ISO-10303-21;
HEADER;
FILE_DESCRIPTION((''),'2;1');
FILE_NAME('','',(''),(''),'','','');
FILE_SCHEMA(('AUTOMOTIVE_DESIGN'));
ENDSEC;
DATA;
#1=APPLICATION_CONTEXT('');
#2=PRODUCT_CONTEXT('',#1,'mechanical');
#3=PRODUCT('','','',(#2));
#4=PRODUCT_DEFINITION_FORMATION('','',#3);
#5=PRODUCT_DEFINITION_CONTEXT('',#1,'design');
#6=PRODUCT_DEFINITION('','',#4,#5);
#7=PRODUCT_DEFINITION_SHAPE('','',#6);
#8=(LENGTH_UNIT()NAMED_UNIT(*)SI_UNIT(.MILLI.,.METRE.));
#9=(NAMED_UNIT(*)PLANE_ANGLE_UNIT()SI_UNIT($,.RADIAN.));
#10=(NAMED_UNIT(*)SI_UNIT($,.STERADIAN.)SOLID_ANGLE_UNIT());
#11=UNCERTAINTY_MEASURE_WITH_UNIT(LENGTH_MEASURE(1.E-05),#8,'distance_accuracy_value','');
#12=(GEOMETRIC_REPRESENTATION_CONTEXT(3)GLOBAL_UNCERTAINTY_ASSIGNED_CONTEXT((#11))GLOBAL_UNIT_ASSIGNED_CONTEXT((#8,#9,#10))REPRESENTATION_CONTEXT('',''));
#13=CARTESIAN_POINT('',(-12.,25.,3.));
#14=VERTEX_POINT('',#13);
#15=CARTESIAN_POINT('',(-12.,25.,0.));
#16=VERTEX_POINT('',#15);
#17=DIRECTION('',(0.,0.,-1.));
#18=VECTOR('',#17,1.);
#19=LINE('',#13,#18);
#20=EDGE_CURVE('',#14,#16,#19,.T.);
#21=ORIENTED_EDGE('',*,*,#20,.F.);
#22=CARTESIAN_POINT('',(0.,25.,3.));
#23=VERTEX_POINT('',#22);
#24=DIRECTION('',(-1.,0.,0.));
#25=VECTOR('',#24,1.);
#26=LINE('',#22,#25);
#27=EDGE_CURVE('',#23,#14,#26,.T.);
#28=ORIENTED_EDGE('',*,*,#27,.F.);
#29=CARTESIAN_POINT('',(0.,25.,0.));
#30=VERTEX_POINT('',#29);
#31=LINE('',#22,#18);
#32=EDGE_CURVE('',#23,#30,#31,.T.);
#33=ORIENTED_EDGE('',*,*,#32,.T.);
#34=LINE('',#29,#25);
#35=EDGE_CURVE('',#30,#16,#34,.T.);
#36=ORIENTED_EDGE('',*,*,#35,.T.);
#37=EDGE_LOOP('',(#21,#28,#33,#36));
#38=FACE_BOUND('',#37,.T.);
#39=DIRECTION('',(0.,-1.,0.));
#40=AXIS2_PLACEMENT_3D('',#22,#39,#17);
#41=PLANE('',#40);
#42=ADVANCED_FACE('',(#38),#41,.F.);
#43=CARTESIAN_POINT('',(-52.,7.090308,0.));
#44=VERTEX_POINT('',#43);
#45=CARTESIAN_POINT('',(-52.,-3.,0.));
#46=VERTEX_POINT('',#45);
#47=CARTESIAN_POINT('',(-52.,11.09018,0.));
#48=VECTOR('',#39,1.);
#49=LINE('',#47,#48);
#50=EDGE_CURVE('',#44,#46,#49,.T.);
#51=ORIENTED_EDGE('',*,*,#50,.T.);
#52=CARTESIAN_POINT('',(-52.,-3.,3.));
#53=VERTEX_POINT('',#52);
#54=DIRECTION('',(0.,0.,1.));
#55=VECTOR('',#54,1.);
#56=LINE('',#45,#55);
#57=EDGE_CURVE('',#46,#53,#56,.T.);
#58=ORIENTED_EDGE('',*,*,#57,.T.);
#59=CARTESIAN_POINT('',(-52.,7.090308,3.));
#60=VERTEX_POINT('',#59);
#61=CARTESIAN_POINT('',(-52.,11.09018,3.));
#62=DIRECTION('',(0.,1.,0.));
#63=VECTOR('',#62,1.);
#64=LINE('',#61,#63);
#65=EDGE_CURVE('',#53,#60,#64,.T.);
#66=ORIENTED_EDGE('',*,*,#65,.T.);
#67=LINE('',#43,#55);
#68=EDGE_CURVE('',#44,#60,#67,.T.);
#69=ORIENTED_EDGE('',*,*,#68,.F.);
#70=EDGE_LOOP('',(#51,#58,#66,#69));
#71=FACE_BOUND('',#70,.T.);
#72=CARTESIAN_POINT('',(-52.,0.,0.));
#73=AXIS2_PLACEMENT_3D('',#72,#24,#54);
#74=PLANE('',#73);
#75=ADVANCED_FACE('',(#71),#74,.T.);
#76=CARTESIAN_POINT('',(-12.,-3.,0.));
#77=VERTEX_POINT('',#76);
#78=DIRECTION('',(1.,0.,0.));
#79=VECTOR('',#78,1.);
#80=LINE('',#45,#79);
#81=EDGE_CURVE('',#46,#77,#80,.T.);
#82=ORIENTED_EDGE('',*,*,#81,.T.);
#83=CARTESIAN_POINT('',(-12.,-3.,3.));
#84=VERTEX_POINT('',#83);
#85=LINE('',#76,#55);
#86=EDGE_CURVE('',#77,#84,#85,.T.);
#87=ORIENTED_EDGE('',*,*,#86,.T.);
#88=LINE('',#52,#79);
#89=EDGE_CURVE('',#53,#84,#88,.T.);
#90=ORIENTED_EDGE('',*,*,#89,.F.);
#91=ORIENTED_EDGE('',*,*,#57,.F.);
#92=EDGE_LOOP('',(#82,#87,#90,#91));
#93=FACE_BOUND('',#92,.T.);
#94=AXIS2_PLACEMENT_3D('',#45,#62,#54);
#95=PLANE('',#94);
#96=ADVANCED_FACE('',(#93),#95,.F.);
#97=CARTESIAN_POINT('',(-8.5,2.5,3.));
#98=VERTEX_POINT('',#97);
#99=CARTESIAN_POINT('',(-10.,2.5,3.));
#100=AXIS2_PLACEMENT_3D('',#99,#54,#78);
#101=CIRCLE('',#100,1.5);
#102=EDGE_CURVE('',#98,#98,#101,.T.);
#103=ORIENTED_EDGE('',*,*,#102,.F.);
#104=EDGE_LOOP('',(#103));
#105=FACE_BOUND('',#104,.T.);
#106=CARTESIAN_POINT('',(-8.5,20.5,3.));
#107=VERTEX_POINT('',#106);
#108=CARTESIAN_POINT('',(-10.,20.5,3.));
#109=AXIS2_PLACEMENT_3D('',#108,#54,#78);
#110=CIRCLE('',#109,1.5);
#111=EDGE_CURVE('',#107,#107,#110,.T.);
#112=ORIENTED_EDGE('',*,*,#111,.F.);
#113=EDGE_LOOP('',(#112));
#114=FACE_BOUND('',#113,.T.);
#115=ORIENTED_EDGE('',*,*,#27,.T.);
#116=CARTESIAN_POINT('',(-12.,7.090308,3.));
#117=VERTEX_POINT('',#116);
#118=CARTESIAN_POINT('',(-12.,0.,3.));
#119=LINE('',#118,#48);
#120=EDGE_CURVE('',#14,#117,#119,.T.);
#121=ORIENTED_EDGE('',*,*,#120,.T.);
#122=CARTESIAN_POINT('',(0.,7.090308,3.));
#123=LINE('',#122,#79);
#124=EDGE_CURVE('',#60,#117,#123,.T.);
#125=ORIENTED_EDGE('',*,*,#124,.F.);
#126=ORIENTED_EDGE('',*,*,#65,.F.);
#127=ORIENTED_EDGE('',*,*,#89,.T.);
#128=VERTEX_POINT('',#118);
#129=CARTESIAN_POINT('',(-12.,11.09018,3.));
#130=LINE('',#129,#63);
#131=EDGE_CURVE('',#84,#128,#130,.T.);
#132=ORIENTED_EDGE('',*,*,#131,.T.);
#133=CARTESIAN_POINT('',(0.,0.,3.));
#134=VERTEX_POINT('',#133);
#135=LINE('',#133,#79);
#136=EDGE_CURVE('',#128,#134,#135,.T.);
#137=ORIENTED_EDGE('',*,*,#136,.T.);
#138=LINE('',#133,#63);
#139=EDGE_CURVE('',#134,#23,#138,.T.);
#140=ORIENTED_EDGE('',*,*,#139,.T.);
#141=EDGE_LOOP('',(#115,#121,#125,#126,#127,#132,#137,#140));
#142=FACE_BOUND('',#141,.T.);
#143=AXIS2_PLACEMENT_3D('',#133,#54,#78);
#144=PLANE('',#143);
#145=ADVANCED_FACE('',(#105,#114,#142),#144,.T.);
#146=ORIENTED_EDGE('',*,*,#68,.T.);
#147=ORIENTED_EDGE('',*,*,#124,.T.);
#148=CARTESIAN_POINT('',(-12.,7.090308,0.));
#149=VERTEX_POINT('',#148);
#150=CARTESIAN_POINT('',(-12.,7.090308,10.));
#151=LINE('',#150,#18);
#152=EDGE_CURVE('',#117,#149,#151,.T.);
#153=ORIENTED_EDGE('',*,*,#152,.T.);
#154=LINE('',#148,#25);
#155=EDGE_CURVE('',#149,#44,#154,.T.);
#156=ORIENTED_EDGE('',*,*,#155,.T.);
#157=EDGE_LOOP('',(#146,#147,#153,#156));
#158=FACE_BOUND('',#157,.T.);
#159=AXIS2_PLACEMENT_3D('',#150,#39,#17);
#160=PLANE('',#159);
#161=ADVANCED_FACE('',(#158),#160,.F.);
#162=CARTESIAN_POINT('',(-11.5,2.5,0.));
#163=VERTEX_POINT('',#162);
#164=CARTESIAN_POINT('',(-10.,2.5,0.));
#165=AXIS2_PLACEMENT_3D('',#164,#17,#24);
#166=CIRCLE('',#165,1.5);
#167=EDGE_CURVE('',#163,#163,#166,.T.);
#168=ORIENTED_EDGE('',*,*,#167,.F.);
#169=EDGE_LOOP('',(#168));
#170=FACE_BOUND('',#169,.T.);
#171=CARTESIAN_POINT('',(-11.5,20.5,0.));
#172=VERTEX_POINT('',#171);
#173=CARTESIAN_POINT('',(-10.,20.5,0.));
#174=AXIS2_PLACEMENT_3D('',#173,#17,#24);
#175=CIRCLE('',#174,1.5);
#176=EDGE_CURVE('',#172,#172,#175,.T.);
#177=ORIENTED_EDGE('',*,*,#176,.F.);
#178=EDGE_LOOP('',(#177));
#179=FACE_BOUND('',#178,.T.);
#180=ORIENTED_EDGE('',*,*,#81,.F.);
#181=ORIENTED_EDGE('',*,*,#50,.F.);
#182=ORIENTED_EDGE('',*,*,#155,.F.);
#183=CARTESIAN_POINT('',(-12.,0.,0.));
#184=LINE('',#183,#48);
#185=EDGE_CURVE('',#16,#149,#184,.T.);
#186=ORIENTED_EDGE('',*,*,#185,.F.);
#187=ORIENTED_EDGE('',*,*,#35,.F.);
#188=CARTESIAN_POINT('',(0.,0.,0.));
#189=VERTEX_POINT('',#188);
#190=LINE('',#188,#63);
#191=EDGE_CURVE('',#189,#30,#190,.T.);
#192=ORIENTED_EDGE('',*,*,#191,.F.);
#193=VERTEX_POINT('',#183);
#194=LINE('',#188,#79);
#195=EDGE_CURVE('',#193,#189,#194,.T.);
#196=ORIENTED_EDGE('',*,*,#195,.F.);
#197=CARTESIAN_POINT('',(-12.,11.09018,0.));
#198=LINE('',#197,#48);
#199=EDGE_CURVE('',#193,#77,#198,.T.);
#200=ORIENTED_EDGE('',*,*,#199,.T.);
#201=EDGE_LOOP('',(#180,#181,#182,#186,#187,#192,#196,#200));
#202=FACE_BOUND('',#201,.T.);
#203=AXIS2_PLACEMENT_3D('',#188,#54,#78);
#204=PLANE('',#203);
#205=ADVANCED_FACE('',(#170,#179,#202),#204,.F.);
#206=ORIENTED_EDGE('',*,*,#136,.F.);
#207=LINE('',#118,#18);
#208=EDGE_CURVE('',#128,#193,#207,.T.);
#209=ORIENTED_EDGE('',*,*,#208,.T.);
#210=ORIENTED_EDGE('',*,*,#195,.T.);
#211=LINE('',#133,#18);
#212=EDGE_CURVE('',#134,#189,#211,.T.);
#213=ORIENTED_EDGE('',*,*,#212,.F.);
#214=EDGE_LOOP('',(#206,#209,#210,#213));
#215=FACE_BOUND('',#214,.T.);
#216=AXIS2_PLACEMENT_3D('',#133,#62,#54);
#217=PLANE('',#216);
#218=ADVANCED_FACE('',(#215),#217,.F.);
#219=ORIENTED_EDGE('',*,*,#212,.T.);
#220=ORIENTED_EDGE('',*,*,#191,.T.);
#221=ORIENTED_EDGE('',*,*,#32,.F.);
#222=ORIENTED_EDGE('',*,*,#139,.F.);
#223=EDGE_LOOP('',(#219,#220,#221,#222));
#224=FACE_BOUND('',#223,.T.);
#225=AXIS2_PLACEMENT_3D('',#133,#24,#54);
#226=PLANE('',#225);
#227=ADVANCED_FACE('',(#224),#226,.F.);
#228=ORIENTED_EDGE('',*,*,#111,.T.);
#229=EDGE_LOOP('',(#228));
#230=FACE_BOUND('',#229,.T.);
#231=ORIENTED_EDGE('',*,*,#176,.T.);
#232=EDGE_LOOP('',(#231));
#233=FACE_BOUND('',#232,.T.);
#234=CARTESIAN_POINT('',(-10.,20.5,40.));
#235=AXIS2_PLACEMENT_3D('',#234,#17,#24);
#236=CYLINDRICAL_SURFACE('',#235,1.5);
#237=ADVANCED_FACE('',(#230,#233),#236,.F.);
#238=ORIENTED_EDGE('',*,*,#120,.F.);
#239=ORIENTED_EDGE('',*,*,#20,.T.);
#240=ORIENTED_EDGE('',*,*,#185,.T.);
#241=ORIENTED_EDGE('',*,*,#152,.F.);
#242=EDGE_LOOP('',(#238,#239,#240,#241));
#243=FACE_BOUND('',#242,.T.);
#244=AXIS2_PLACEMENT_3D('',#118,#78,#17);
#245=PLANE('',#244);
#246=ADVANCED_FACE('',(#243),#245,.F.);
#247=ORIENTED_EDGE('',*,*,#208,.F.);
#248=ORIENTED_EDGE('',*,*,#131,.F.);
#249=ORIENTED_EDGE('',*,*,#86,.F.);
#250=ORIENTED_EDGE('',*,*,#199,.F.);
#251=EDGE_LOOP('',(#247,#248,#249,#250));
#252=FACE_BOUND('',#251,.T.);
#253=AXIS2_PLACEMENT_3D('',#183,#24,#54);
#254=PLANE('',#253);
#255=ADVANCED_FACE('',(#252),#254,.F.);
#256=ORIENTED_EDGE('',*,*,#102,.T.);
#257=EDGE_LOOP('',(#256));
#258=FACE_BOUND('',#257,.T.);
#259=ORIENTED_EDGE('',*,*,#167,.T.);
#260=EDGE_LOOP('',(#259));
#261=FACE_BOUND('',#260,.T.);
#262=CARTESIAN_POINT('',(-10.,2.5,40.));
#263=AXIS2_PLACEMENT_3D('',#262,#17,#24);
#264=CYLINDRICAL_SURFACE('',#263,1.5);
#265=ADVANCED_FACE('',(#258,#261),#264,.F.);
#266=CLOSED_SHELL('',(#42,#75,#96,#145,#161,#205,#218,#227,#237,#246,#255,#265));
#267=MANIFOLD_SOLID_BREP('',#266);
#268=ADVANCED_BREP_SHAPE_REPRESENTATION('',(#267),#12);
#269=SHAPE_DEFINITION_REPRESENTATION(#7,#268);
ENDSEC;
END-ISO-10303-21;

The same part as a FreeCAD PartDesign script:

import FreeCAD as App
import Part
import Sketcher


def add_polygon(sketch, points):
    """Adds a closed chain of lines whose ends are joined by coincident constraints."""
    first, n = sketch.GeometryCount, len(points)
    for a, b in zip(points, points[1:] + points[:1]):
        sketch.addGeometry(Part.LineSegment(App.Vector(*a, 0), App.Vector(*b, 0)), False)
    for i in range(n):
        sketch.addConstraint(Sketcher.Constraint("Coincident", first + i, 2, first + (i + 1) % n, 1))

doc = App.newDocument("Part")
body = doc.addObject("PartDesign::Body", "Body")

sketch1 = body.newObject("Sketcher::SketchObject", "Sketch")
sketch1.AttachmentSupport = (doc.getObject("XY_Plane"), [""])
sketch1.MapMode = "FlatFace"
add_polygon(sketch1, [(-12, 25), (-12, 0), (0, 0), (0, 25)])
sketch1.addConstraint([
    Sketcher.Constraint("Vertical", 0),
    Sketcher.Constraint("Horizontal", 1),
    Sketcher.Constraint("Vertical", 2),
    Sketcher.Constraint("Horizontal", 3),
    Sketcher.Constraint("Coincident", 1, 2, -1, 1),
    Sketcher.Constraint("DistanceX", 1, 1, 1, 2, 12.0),
    Sketcher.Constraint("DistanceY", 0, 2, 0, 1, 25.0),
])
pad1 = body.newObject("PartDesign::Pad", "Pad")
pad1.Profile = sketch1
pad1.Length = 3

sketch2 = body.newObject("Sketcher::SketchObject", "Sketch001")
sketch2.AttachmentSupport = (doc.getObject("XY_Plane"), [""])
sketch2.MapMode = "FlatFace"
sketch2.addGeometry([
    Part.Circle(App.Vector(-10, 2.5, 0), App.Vector(0, 0, 1), 1.5),
    Part.Circle(App.Vector(-10, 20.5, 0), App.Vector(0, 0, 1), 1.5),
], False)
sketch2.addConstraint([
    Sketcher.Constraint("Equal", 0, 1),
    Sketcher.Constraint("Vertical", 0, 3, 1, 3),
    Sketcher.Constraint("Diameter", 0, 3.0),
    Sketcher.Constraint("DistanceX", 0, 3, -1, 1, 10.0),
    Sketcher.Constraint("DistanceY", 0, 3, 1, 3, 18.0),
    Sketcher.Constraint("DistanceY", -1, 1, 0, 3, 2.5),
])
pocket1 = body.newObject("PartDesign::Pocket", "Pocket")
pocket1.Profile = sketch2
pocket1.Length = 40
pocket1.Reversed = True

sketch3 = body.newObject("Sketcher::SketchObject", "Sketch002")
sketch3.AttachmentSupport = (doc.getObject("YZ_Plane"), [""])
sketch3.MapMode = "FlatFace"
sketch3.AttachmentOffset = App.Placement(App.Vector(0, 0, -12), App.Rotation())
add_polygon(sketch3, [(11.1, 0), (-3, 0), (-3, 3), (11.1, 3)])
sketch3.addConstraint([
    Sketcher.Constraint("Horizontal", 0),
    Sketcher.Constraint("Vertical", 1),
    Sketcher.Constraint("Horizontal", 2),
    Sketcher.Constraint("Vertical", 3),
    Sketcher.Constraint("PointOnObject", 0, 2, -1),
    Sketcher.Constraint("DistanceY", 1, 1, 1, 2, 3.0),
    Sketcher.Constraint("DistanceX", 0, 2, -1, 1, 3.0),
    Sketcher.Constraint("DistanceX", 0, 2, 0, 1, 14.09018),
])
pad2 = body.newObject("PartDesign::Pad", "Pad001")
pad2.Profile = sketch3
pad2.Length = 40
pad2.Reversed = True

sketch4 = body.newObject("Sketcher::SketchObject", "Sketch003")
sketch4.AttachmentSupport = (doc.getObject("XY_Plane"), [""])
sketch4.MapMode = "FlatFace"
add_polygon(sketch4, [(-12, 11.1), (-12, 7.1), (-52, 7.1), (-52, 11.1)])
sketch4.addConstraint([
    Sketcher.Constraint("Vertical", 0),
    Sketcher.Constraint("Horizontal", 1),
    Sketcher.Constraint("Vertical", 2),
    Sketcher.Constraint("Horizontal", 3),
    Sketcher.Constraint("DistanceX", 1, 2, 1, 1, 40.0),
    Sketcher.Constraint("DistanceX", 0, 2, -1, 1, 12.0),
    Sketcher.Constraint("DistanceY", 0, 2, 0, 1, 3.999871),
    Sketcher.Constraint("DistanceY", -1, 1, 0, 2, 7.090308),
])
pocket2 = body.newObject("PartDesign::Pocket", "Pocket001")
pocket2.Profile = sketch4
pocket2.Length = 10
pocket2.Reversed = True

doc.recompute()
